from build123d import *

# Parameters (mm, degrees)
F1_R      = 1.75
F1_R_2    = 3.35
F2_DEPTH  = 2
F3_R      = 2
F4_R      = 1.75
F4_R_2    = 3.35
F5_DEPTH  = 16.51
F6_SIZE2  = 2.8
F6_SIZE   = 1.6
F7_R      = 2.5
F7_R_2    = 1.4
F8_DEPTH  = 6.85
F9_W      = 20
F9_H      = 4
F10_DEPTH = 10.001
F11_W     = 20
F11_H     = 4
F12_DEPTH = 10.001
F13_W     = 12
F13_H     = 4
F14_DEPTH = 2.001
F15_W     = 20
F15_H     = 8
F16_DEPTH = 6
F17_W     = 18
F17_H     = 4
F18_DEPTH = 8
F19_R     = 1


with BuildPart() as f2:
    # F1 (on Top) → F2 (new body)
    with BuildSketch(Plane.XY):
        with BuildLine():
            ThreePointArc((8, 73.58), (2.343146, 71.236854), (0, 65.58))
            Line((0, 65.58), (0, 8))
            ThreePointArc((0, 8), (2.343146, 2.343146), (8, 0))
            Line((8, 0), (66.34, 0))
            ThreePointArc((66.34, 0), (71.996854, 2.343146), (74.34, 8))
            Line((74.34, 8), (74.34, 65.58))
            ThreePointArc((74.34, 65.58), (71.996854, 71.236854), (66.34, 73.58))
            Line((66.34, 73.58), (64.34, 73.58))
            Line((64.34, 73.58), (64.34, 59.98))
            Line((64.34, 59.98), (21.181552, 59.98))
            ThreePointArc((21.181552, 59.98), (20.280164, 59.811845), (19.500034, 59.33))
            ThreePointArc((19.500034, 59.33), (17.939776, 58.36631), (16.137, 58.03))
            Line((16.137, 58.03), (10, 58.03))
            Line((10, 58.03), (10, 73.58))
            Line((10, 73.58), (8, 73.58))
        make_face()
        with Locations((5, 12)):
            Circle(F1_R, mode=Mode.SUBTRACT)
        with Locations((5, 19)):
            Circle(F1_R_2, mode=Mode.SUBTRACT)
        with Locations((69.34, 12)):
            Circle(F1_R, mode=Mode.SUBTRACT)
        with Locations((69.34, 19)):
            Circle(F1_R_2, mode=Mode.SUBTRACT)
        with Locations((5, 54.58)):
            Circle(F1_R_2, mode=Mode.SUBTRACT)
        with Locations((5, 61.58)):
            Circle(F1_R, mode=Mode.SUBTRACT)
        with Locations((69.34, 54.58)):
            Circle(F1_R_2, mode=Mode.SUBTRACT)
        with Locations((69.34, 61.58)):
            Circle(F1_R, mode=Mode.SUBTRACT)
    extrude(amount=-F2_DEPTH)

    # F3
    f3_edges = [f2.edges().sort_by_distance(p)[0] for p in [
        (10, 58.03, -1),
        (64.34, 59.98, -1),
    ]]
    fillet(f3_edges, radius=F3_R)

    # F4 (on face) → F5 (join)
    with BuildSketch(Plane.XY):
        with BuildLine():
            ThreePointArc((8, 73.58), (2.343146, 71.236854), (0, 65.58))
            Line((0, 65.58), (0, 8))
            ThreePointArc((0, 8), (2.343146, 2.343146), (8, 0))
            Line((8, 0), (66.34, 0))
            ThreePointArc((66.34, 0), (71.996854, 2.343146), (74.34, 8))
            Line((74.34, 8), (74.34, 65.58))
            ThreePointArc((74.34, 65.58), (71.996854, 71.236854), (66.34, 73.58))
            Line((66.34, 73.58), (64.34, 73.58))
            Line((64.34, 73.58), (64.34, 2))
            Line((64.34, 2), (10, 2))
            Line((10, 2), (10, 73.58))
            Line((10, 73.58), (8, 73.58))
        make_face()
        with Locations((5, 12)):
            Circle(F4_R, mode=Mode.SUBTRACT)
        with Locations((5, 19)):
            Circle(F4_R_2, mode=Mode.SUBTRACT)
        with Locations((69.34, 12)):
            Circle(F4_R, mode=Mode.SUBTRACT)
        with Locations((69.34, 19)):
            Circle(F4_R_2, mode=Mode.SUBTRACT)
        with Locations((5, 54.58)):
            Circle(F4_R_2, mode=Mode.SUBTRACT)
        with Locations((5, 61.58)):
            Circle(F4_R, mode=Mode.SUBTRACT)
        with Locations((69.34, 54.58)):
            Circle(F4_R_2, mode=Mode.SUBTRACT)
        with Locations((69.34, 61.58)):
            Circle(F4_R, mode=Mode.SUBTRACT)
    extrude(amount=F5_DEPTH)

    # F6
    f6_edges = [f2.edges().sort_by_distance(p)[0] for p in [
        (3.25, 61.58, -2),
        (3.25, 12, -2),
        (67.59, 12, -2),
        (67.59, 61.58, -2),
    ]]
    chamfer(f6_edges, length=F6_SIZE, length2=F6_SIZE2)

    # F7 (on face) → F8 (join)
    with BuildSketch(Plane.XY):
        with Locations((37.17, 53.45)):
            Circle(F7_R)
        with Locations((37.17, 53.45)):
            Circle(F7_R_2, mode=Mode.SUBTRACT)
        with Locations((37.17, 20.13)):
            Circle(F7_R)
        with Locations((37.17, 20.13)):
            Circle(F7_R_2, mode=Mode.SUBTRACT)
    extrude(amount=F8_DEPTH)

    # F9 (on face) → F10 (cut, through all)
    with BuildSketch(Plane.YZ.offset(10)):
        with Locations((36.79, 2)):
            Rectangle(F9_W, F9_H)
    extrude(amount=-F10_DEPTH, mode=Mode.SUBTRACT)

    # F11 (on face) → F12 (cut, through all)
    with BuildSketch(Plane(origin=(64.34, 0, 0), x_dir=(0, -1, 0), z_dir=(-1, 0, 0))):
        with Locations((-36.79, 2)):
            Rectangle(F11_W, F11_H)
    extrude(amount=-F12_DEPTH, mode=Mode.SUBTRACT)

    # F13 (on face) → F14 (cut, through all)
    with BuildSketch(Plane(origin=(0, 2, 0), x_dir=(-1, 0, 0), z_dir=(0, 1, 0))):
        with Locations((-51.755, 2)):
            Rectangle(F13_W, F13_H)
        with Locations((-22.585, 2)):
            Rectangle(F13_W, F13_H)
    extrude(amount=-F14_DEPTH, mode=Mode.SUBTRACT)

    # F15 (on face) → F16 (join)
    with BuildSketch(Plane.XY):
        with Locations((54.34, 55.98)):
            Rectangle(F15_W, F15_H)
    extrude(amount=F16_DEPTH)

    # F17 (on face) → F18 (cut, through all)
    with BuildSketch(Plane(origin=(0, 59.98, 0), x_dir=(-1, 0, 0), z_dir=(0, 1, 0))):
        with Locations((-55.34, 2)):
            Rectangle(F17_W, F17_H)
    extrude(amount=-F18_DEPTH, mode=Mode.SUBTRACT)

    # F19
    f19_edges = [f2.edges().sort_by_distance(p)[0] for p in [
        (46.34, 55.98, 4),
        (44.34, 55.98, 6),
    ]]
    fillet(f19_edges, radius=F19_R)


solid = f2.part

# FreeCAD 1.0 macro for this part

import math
import FreeCAD as App
import Part
import Sketcher
Q = App.Units.Quantity


def edges_at(feature, points):
    """Names of the edges that pass closest to the given points."""
    edges = feature.Shape.Edges
    near = lambda p: min(range(len(edges)), key=lambda i: edges[i].distToShape(Part.Vertex(*p))[0])
    return sorted({f"Edge{near(p) + 1}" for p in points})

doc = App.newDocument("Part")
body = doc.addObject("PartDesign::Body", "Body")

sketch1 = body.newObject("Sketcher::SketchObject", "Sketch")
sketch1.AttachmentSupport = (doc.getObject("XY_Plane"), [""])
sketch1.MapMode = "FlatFace"
sketch1.addGeometry(Part.ArcOfCircle(Part.Circle(App.Vector(8.000001, 65.579999, 0), App.Vector(0, 0, 1), 8.000001), math.radians(90.000006), math.radians(179.999994)), False)
sketch1.addGeometry(Part.LineSegment(App.Vector(0, 65.58, 0), App.Vector(0, 8, 0)), False)
sketch1.addGeometry(Part.ArcOfCircle(Part.Circle(App.Vector(8.000001, 8.000001, 0), App.Vector(0, 0, 1), 8.000001), math.radians(-179.999994), math.radians(-90.000006)), False)
sketch1.addGeometry(Part.LineSegment(App.Vector(8, 0, 0), App.Vector(66.34, 0, 0)), False)
sketch1.addGeometry(Part.ArcOfCircle(Part.Circle(App.Vector(66.339999, 8.000001, 0), App.Vector(0, 0, 1), 8.000001), math.radians(-89.999994), math.radians(-0.000006)), False)
sketch1.addGeometry(Part.LineSegment(App.Vector(74.34, 8, 0), App.Vector(74.34, 65.58, 0)), False)
sketch1.addGeometry(Part.ArcOfCircle(Part.Circle(App.Vector(66.339999, 65.579999, 0), App.Vector(0, 0, 1), 8.000001), math.radians(0.000006), math.radians(89.999994)), False)
sketch1.addGeometry(Part.LineSegment(App.Vector(66.34, 73.58, 0), App.Vector(64.34, 73.58, 0)), False)
sketch1.addGeometry(Part.LineSegment(App.Vector(64.34, 73.58, 0), App.Vector(64.34, 59.98, 0)), False)
sketch1.addGeometry(Part.LineSegment(App.Vector(64.34, 59.98, 0), App.Vector(21.181552, 59.98, 0)), False)
sketch1.addGeometry(Part.ArcOfCircle(Part.Circle(App.Vector(21.181551, 57.48, 0), App.Vector(0, 0, 1), 2.5), math.radians(89.999983), math.radians(132.268583)), False)
sketch1.addGeometry(Part.ArcOfCircle(Part.Circle(App.Vector(16.137003, 63.02999, 0), App.Vector(0, 0, 1), 4.99999), math.radians(-90.000039), math.radians(-47.731373)), False)
sketch1.addGeometry(Part.LineSegment(App.Vector(16.137, 58.03, 0), App.Vector(10, 58.03, 0)), False)
sketch1.addGeometry(Part.LineSegment(App.Vector(10, 58.03, 0), App.Vector(10, 73.58, 0)), False)
sketch1.addGeometry(Part.LineSegment(App.Vector(10, 73.58, 0), App.Vector(8, 73.58, 0)), False)
sketch1.addGeometry(Part.Circle(App.Vector(5, 12, 0), App.Vector(0, 0, 1), 1.75), False)
sketch1.addGeometry(Part.Circle(App.Vector(5, 19, 0), App.Vector(0, 0, 1), 3.35), False)
sketch1.addGeometry(Part.Circle(App.Vector(69.34, 12, 0), App.Vector(0, 0, 1), 1.75), False)
sketch1.addGeometry(Part.Circle(App.Vector(69.34, 19, 0), App.Vector(0, 0, 1), 3.35), False)
sketch1.addGeometry(Part.Circle(App.Vector(5, 54.58, 0), App.Vector(0, 0, 1), 3.35), False)
sketch1.addGeometry(Part.Circle(App.Vector(5, 61.58, 0), App.Vector(0, 0, 1), 1.75), False)
sketch1.addGeometry(Part.Circle(App.Vector(69.34, 54.58, 0), App.Vector(0, 0, 1), 3.35), False)
sketch1.addGeometry(Part.Circle(App.Vector(69.34, 61.58, 0), App.Vector(0, 0, 1), 1.75), False)
sketch1.addConstraint(Sketcher.Constraint("Tangent", 0, 2, 1, 1))
sketch1.addConstraint(Sketcher.Constraint("Tangent", 1, 2, 2, 1))
sketch1.addConstraint(Sketcher.Constraint("Tangent", 2, 2, 3, 1))
sketch1.addConstraint(Sketcher.Constraint("Tangent", 3, 2, 4, 1))
sketch1.addConstraint(Sketcher.Constraint("Tangent", 4, 2, 5, 1))
sketch1.addConstraint(Sketcher.Constraint("Tangent", 5, 2, 6, 1))
sketch1.addConstraint(Sketcher.Constraint("Tangent", 6, 2, 7, 1))
sketch1.addConstraint(Sketcher.Constraint("Coincident", 7, 2, 8, 1))
sketch1.addConstraint(Sketcher.Constraint("Coincident", 8, 2, 9, 1))
sketch1.addConstraint(Sketcher.Constraint("Tangent", 9, 2, 10, 1))
sketch1.addConstraint(Sketcher.Constraint("Tangent", 10, 2, 11, 2))
sketch1.addConstraint(Sketcher.Constraint("Tangent", 11, 1, 12, 1))
sketch1.addConstraint(Sketcher.Constraint("Coincident", 12, 2, 13, 1))
sketch1.addConstraint(Sketcher.Constraint("Coincident", 13, 2, 14, 1))
sketch1.addConstraint(Sketcher.Constraint("Tangent", 14, 2, 0, 1))
sketch1.addConstraint(Sketcher.Constraint("Vertical", 1))
sketch1.addConstraint(Sketcher.Constraint("Horizontal", 3))
sketch1.addConstraint(Sketcher.Constraint("Vertical", 5))
sketch1.addConstraint(Sketcher.Constraint("Horizontal", 7))
sketch1.addConstraint(Sketcher.Constraint("Vertical", 8))
sketch1.addConstraint(Sketcher.Constraint("Horizontal", 9))
sketch1.addConstraint(Sketcher.Constraint("Horizontal", 12))
sketch1.addConstraint(Sketcher.Constraint("Vertical", 13))
sketch1.addConstraint(Sketcher.Constraint("Horizontal", 14))
sketch1.addConstraint(Sketcher.Constraint("Equal", 0, 2))
sketch1.addConstraint(Sketcher.Constraint("Equal", 2, 4))
sketch1.addConstraint(Sketcher.Constraint("Equal", 4, 6))
sketch1.addConstraint(Sketcher.Constraint("Equal", 15, 17))
sketch1.addConstraint(Sketcher.Constraint("Equal", 16, 18))
sketch1.addConstraint(Sketcher.Constraint("Equal", 18, 19))
sketch1.addConstraint(Sketcher.Constraint("Equal", 17, 20))
sketch1.addConstraint(Sketcher.Constraint("Equal", 19, 21))
sketch1.addConstraint(Sketcher.Constraint("Equal", 20, 22))
sketch1.addConstraint(Sketcher.Constraint("PointOnObject", 0, 2, -2))
sketch1.addConstraint(Sketcher.Constraint("PointOnObject", 2, 2, -1))
sketch1.addConstraint(Sketcher.Constraint("Horizontal", 0, 3, 6, 3))
sketch1.addConstraint(Sketcher.Constraint("Horizontal", 15, 3, 17, 3))
sketch1.addConstraint(Sketcher.Constraint("Horizontal", 16, 3, 18, 3))
sketch1.addConstraint(Sketcher.Constraint("Horizontal", 19, 3, 21, 3))
sketch1.addConstraint(Sketcher.Constraint("Horizontal", 20, 3, 22, 3))
sketch1.addConstraint(Sketcher.Constraint("Vertical", 15, 3, 16, 3))
sketch1.addConstraint(Sketcher.Constraint("Vertical", 17, 3, 18, 3))
sketch1.addConstraint(Sketcher.Constraint("Vertical", 16, 3, 19, 3))
sketch1.addConstraint(Sketcher.Constraint("Vertical", 19, 3, 20, 3))
sketch1.addConstraint(Sketcher.Constraint("Vertical", 18, 3, 21, 3))
sketch1.addConstraint(Sketcher.Constraint("Vertical", 21, 3, 22, 3))
sketch1.addConstraint(Sketcher.Constraint("Equal", 7, 14))
sketch1.addConstraint(Sketcher.Constraint("Radius", 0, Q("8.000001 mm")))
sketch1.addConstraint(Sketcher.Constraint("Diameter", 15, Q("3.5 mm")))
sketch1.addConstraint(Sketcher.Constraint("Diameter", 16, Q("6.7 mm")))
sketch1.addConstraint(Sketcher.Constraint("Radius", 10, Q("2.5 mm")))
sketch1.addConstraint(Sketcher.Constraint("DistanceX", 7, 2, 7, 1, Q("2 mm")))
sketch1.addConstraint(Sketcher.Constraint("DistanceY", 8, 2, 8, 1, Q("13.6 mm")))
sketch1.addConstraint(Sketcher.Constraint("DistanceX", -1, 1, 15, 3, Q("5 mm")))
sketch1.addConstraint(Sketcher.Constraint("DistanceY", -1, 1, 15, 3, Q("12 mm")))
sketch1.addConstraint(Sketcher.Constraint("DistanceY", -1, 1, 16, 3, Q("19 mm")))
sketch1.addConstraint(Sketcher.Constraint("DistanceX", 4, 3, 17, 3, Q("3.000001 mm")))
sketch1.addConstraint(Sketcher.Constraint("DistanceY", 19, 3, 0, 3, Q("10.999999 mm")))
sketch1.addConstraint(Sketcher.Constraint("DistanceY", 20, 3, 0, 3, Q("3.999999 mm")))
sketch1.addConstraint(Sketcher.Constraint("DistanceX", 3, 1, 3, 2, Q("58.34 mm")))
sketch1.addConstraint(Sketcher.Constraint("DistanceY", 1, 2, 1, 1, Q("57.58 mm")))
sketch1.addConstraint(Sketcher.Constraint("DistanceY", 13, 1, 13, 2, Q("15.55 mm")))
sketch1.addConstraint(Sketcher.Constraint("DistanceY", 11, 1, 10, 2, Q("1.3 mm")))
sketch1.addConstraint(Sketcher.Constraint("DistanceX", 12, 2, 12, 1, Q("6.137 mm")))
pad1 = body.newObject("PartDesign::Pad", "Pad")
pad1.Profile = sketch1
pad1.Length = 2
pad1.Reversed = True
doc.recompute()

fillet = body.newObject("PartDesign::Fillet", "Fillet")
fillet.Base = (pad1, edges_at(pad1, [(10, 58.03, -1), (64.34, 59.98, -1)]))
fillet.Radius = 2

sketch2 = body.newObject("Sketcher::SketchObject", "Sketch001")
sketch2.AttachmentSupport = (doc.getObject("XY_Plane"), [""])
sketch2.MapMode = "FlatFace"
sketch2.addGeometry(Part.ArcOfCircle(Part.Circle(App.Vector(8.000001, 65.579999, 0), App.Vector(0, 0, 1), 8.000001), math.radians(90.000006), math.radians(179.999994)), False)
sketch2.addGeometry(Part.LineSegment(App.Vector(0, 65.58, 0), App.Vector(0, 8, 0)), False)
sketch2.addGeometry(Part.ArcOfCircle(Part.Circle(App.Vector(8.000001, 8.000001, 0), App.Vector(0, 0, 1), 8.000001), math.radians(-179.999994), math.radians(-90.000006)), False)
sketch2.addGeometry(Part.LineSegment(App.Vector(8, 0, 0), App.Vector(66.34, 0, 0)), False)
sketch2.addGeometry(Part.ArcOfCircle(Part.Circle(App.Vector(66.339999, 8.000001, 0), App.Vector(0, 0, 1), 8.000001), math.radians(-89.999994), math.radians(-0.000006)), False)
sketch2.addGeometry(Part.LineSegment(App.Vector(74.34, 8, 0), App.Vector(74.34, 65.58, 0)), False)
sketch2.addGeometry(Part.ArcOfCircle(Part.Circle(App.Vector(66.339999, 65.579999, 0), App.Vector(0, 0, 1), 8.000001), math.radians(0.000006), math.radians(89.999994)), False)
sketch2.addGeometry(Part.LineSegment(App.Vector(66.34, 73.58, 0), App.Vector(64.34, 73.58, 0)), False)
sketch2.addGeometry(Part.LineSegment(App.Vector(64.34, 73.58, 0), App.Vector(64.34, 2, 0)), False)
sketch2.addGeometry(Part.LineSegment(App.Vector(64.34, 2, 0), App.Vector(10, 2, 0)), False)
sketch2.addGeometry(Part.LineSegment(App.Vector(10, 2, 0), App.Vector(10, 73.58, 0)), False)
sketch2.addGeometry(Part.LineSegment(App.Vector(10, 73.58, 0), App.Vector(8, 73.58, 0)), False)
sketch2.addGeometry(Part.Circle(App.Vector(5, 12, 0), App.Vector(0, 0, 1), 1.75), False)
sketch2.addGeometry(Part.Circle(App.Vector(5, 19, 0), App.Vector(0, 0, 1), 3.35), False)
sketch2.addGeometry(Part.Circle(App.Vector(69.34, 12, 0), App.Vector(0, 0, 1), 1.75), False)
sketch2.addGeometry(Part.Circle(App.Vector(69.34, 19, 0), App.Vector(0, 0, 1), 3.35), False)
sketch2.addGeometry(Part.Circle(App.Vector(5, 54.58, 0), App.Vector(0, 0, 1), 3.35), False)
sketch2.addGeometry(Part.Circle(App.Vector(5, 61.58, 0), App.Vector(0, 0, 1), 1.75), False)
sketch2.addGeometry(Part.Circle(App.Vector(69.34, 54.58, 0), App.Vector(0, 0, 1), 3.35), False)
sketch2.addGeometry(Part.Circle(App.Vector(69.34, 61.58, 0), App.Vector(0, 0, 1), 1.75), False)
sketch2.addConstraint(Sketcher.Constraint("Tangent", 0, 2, 1, 1))
sketch2.addConstraint(Sketcher.Constraint("Tangent", 1, 2, 2, 1))
sketch2.addConstraint(Sketcher.Constraint("Tangent", 2, 2, 3, 1))
sketch2.addConstraint(Sketcher.Constraint("Tangent", 3, 2, 4, 1))
sketch2.addConstraint(Sketcher.Constraint("Tangent", 4, 2, 5, 1))
sketch2.addConstraint(Sketcher.Constraint("Tangent", 5, 2, 6, 1))
sketch2.addConstraint(Sketcher.Constraint("Tangent", 6, 2, 7, 1))
sketch2.addConstraint(Sketcher.Constraint("Coincident", 7, 2, 8, 1))
sketch2.addConstraint(Sketcher.Constraint("Coincident", 8, 2, 9, 1))
sketch2.addConstraint(Sketcher.Constraint("Coincident", 9, 2, 10, 1))
sketch2.addConstraint(Sketcher.Constraint("Coincident", 10, 2, 11, 1))
sketch2.addConstraint(Sketcher.Constraint("Tangent", 11, 2, 0, 1))
sketch2.addConstraint(Sketcher.Constraint("Vertical", 1))
sketch2.addConstraint(Sketcher.Constraint("Horizontal", 3))
sketch2.addConstraint(Sketcher.Constraint("Vertical", 5))
sketch2.addConstraint(Sketcher.Constraint("Horizontal", 7))
sketch2.addConstraint(Sketcher.Constraint("Vertical", 8))
sketch2.addConstraint(Sketcher.Constraint("Horizontal", 9))
sketch2.addConstraint(Sketcher.Constraint("Vertical", 10))
sketch2.addConstraint(Sketcher.Constraint("Horizontal", 11))
sketch2.addConstraint(Sketcher.Constraint("Equal", 0, 2))
sketch2.addConstraint(Sketcher.Constraint("Equal", 2, 4))
sketch2.addConstraint(Sketcher.Constraint("Equal", 4, 6))
sketch2.addConstraint(Sketcher.Constraint("Equal", 12, 14))
sketch2.addConstraint(Sketcher.Constraint("Equal", 13, 15))
sketch2.addConstraint(Sketcher.Constraint("Equal", 15, 16))
sketch2.addConstraint(Sketcher.Constraint("Equal", 14, 17))
sketch2.addConstraint(Sketcher.Constraint("Equal", 16, 18))
sketch2.addConstraint(Sketcher.Constraint("Equal", 17, 19))
sketch2.addConstraint(Sketcher.Constraint("PointOnObject", 0, 2, -2))
sketch2.addConstraint(Sketcher.Constraint("PointOnObject", 2, 2, -1))
sketch2.addConstraint(Sketcher.Constraint("Horizontal", 0, 3, 6, 3))
sketch2.addConstraint(Sketcher.Constraint("Horizontal", 12, 3, 14, 3))
sketch2.addConstraint(Sketcher.Constraint("Horizontal", 13, 3, 15, 3))
sketch2.addConstraint(Sketcher.Constraint("Horizontal", 16, 3, 18, 3))
sketch2.addConstraint(Sketcher.Constraint("Horizontal", 17, 3, 19, 3))
sketch2.addConstraint(Sketcher.Constraint("Vertical", 12, 3, 13, 3))
sketch2.addConstraint(Sketcher.Constraint("Vertical", 14, 3, 15, 3))
sketch2.addConstraint(Sketcher.Constraint("Vertical", 13, 3, 16, 3))
sketch2.addConstraint(Sketcher.Constraint("Vertical", 16, 3, 17, 3))
sketch2.addConstraint(Sketcher.Constraint("Vertical", 15, 3, 18, 3))
sketch2.addConstraint(Sketcher.Constraint("Vertical", 18, 3, 19, 3))
sketch2.addConstraint(Sketcher.Constraint("Equal", 7, 11))
sketch2.addConstraint(Sketcher.Constraint("Radius", 0, Q("8.000001 mm")))
sketch2.addConstraint(Sketcher.Constraint("Diameter", 12, Q("3.5 mm")))
sketch2.addConstraint(Sketcher.Constraint("Diameter", 13, Q("6.7 mm")))
sketch2.addConstraint(Sketcher.Constraint("DistanceX", 7, 2, 7, 1, Q("2 mm")))
sketch2.addConstraint(Sketcher.Constraint("DistanceX", -1, 1, 12, 3, Q("5 mm")))
sketch2.addConstraint(Sketcher.Constraint("DistanceY", -1, 1, 12, 3, Q("12 mm")))
sketch2.addConstraint(Sketcher.Constraint("DistanceY", -1, 1, 13, 3, Q("19 mm")))
sketch2.addConstraint(Sketcher.Constraint("DistanceY", -1, 1, 8, 2, Q("2 mm")))
sketch2.addConstraint(Sketcher.Constraint("DistanceX", 4, 3, 14, 3, Q("3.000001 mm")))
sketch2.addConstraint(Sketcher.Constraint("DistanceY", 16, 3, 0, 3, Q("10.999999 mm")))
sketch2.addConstraint(Sketcher.Constraint("DistanceY", 17, 3, 0, 3, Q("3.999999 mm")))
sketch2.addConstraint(Sketcher.Constraint("DistanceX", 3, 1, 3, 2, Q("58.34 mm")))
sketch2.addConstraint(Sketcher.Constraint("DistanceY", 1, 2, 1, 1, Q("57.58 mm")))
pad2 = body.newObject("PartDesign::Pad", "Pad001")
pad2.Profile = sketch2
pad2.Length = 16.51
doc.recompute()

chamfer = body.newObject("PartDesign::Chamfer", "Chamfer")
chamfer.Base = (pad2, edges_at(pad2, [
    (3.25, 61.58, -2),
    (3.25, 12, -2),
    (67.59, 12, -2),
    (67.59, 61.58, -2),
]))
chamfer.ChamferType = "Two distances"
chamfer.Size = 1.6
chamfer.Size2 = 2.8

sketch3 = body.newObject("Sketcher::SketchObject", "Sketch002")
sketch3.AttachmentSupport = (doc.getObject("XY_Plane"), [""])
sketch3.MapMode = "FlatFace"
sketch3.addGeometry(Part.Circle(App.Vector(37.17, 53.45, 0), App.Vector(0, 0, 1), 2.5), False)
sketch3.addGeometry(Part.Circle(App.Vector(37.17, 53.45, 0), App.Vector(0, 0, 1), 1.4), False)
sketch3.addGeometry(Part.Circle(App.Vector(37.17, 20.13, 0), App.Vector(0, 0, 1), 2.5), False)
sketch3.addGeometry(Part.Circle(App.Vector(37.17, 20.13, 0), App.Vector(0, 0, 1), 1.4), False)
sketch3.addConstraint(Sketcher.Constraint("Coincident", 1, 3, 0, 3))
sketch3.addConstraint(Sketcher.Constraint("Coincident", 3, 3, 2, 3))
sketch3.addConstraint(Sketcher.Constraint("Equal", 0, 2))
sketch3.addConstraint(Sketcher.Constraint("Equal", 1, 3))
sketch3.addConstraint(Sketcher.Constraint("Vertical", 1, 3, 2, 3))
sketch3.addConstraint(Sketcher.Constraint("Diameter", 0, Q("5 mm")))
sketch3.addConstraint(Sketcher.Constraint("Diameter", 1, Q("2.8 mm")))
sketch3.addConstraint(Sketcher.Constraint("DistanceX", -1, 1, 0, 3, Q("37.17 mm")))
sketch3.addConstraint(Sketcher.Constraint("DistanceY", -1, 1, 0, 3, Q("53.45 mm")))
sketch3.addConstraint(Sketcher.Constraint("DistanceY", -1, 1, 2, 3, Q("20.13 mm")))
pad3 = body.newObject("PartDesign::Pad", "Pad002")
pad3.Profile = sketch3
pad3.Length = 6.85

sketch4 = body.newObject("Sketcher::SketchObject", "Sketch003")
sketch4.AttachmentSupport = (doc.getObject("YZ_Plane"), [""])
sketch4.MapMode = "FlatFace"
sketch4.AttachmentOffset = App.Placement(App.Vector(0, 0, 10), App.Rotation())
sketch4.addGeometry(Part.LineSegment(App.Vector(26.79, 4, 0), App.Vector(26.79, 0, 0)), False)
sketch4.addGeometry(Part.LineSegment(App.Vector(26.79, 0, 0), App.Vector(46.79, 0, 0)), False)
sketch4.addGeometry(Part.LineSegment(App.Vector(46.79, 0, 0), App.Vector(46.79, 4, 0)), False)
sketch4.addGeometry(Part.LineSegment(App.Vector(46.79, 4, 0), App.Vector(26.79, 4, 0)), False)
sketch4.addConstraint(Sketcher.Constraint("Coincident", 0, 2, 1, 1))
sketch4.addConstraint(Sketcher.Constraint("Coincident", 1, 2, 2, 1))
sketch4.addConstraint(Sketcher.Constraint("Coincident", 2, 2, 3, 1))
sketch4.addConstraint(Sketcher.Constraint("Coincident", 3, 2, 0, 1))
sketch4.addConstraint(Sketcher.Constraint("Vertical", 0))
sketch4.addConstraint(Sketcher.Constraint("Horizontal", 1))
sketch4.addConstraint(Sketcher.Constraint("Vertical", 2))
sketch4.addConstraint(Sketcher.Constraint("Horizontal", 3))
sketch4.addConstraint(Sketcher.Constraint("PointOnObject", 0, 2, -1))
sketch4.addConstraint(Sketcher.Constraint("DistanceX", 1, 1, 1, 2, Q("20 mm")))
sketch4.addConstraint(Sketcher.Constraint("DistanceY", 0, 2, 0, 1, Q("4 mm")))
sketch4.addConstraint(Sketcher.Constraint("DistanceX", -1, 1, 0, 2, Q("26.79 mm")))
pocket1 = body.newObject("PartDesign::Pocket", "Pocket")
pocket1.Profile = sketch4
pocket1.Type = "ThroughAll"

sketch5 = body.newObject("Sketcher::SketchObject", "Sketch004")
sketch5.AttachmentSupport = (doc.getObject("YZ_Plane"), [""])
sketch5.MapMode = "FlatFace"
sketch5.AttachmentOffset = App.Placement(App.Vector(0, 0, 64.34), App.Rotation())
sketch5.addGeometry(Part.LineSegment(App.Vector(46.79, 4, 0), App.Vector(46.79, 0, 0)), False)
sketch5.addGeometry(Part.LineSegment(App.Vector(46.79, 0, 0), App.Vector(26.79, 0, 0)), False)
sketch5.addGeometry(Part.LineSegment(App.Vector(26.79, 0, 0), App.Vector(26.79, 4, 0)), False)
sketch5.addGeometry(Part.LineSegment(App.Vector(26.79, 4, 0), App.Vector(46.79, 4, 0)), False)
sketch5.addConstraint(Sketcher.Constraint("Coincident", 0, 2, 1, 1))
sketch5.addConstraint(Sketcher.Constraint("Coincident", 1, 2, 2, 1))
sketch5.addConstraint(Sketcher.Constraint("Coincident", 2, 2, 3, 1))
sketch5.addConstraint(Sketcher.Constraint("Coincident", 3, 2, 0, 1))
sketch5.addConstraint(Sketcher.Constraint("Vertical", 0))
sketch5.addConstraint(Sketcher.Constraint("Horizontal", 1))
sketch5.addConstraint(Sketcher.Constraint("Vertical", 2))
sketch5.addConstraint(Sketcher.Constraint("Horizontal", 3))
sketch5.addConstraint(Sketcher.Constraint("PointOnObject", 0, 2, -1))
sketch5.addConstraint(Sketcher.Constraint("DistanceX", 1, 2, 1, 1, Q("20 mm")))
sketch5.addConstraint(Sketcher.Constraint("DistanceY", 0, 2, 0, 1, Q("4 mm")))
sketch5.addConstraint(Sketcher.Constraint("DistanceX", -1, 1, 0, 2, Q("46.79 mm")))
pocket2 = body.newObject("PartDesign::Pocket", "Pocket001")
pocket2.Profile = sketch5
pocket2.Type = "ThroughAll"
pocket2.Reversed = True

sketch6 = body.newObject("Sketcher::SketchObject", "Sketch005")
sketch6.AttachmentSupport = (doc.getObject("XZ_Plane"), [""])
sketch6.MapMode = "FlatFace"
sketch6.AttachmentOffset = App.Placement(App.Vector(0, 0, -2), App.Rotation())
sketch6.addGeometry(Part.LineSegment(App.Vector(57.755, 4, 0), App.Vector(57.755, 0, 0)), False)
sketch6.addGeometry(Part.LineSegment(App.Vector(57.755, 0, 0), App.Vector(45.755, 0, 0)), False)
sketch6.addGeometry(Part.LineSegment(App.Vector(45.755, 0, 0), App.Vector(45.755, 4, 0)), False)
sketch6.addGeometry(Part.LineSegment(App.Vector(45.755, 4, 0), App.Vector(57.755, 4, 0)), False)
sketch6.addGeometry(Part.LineSegment(App.Vector(28.585, 4, 0), App.Vector(28.585, 0, 0)), False)
sketch6.addGeometry(Part.LineSegment(App.Vector(28.585, 0, 0), App.Vector(16.585, 0, 0)), False)
sketch6.addGeometry(Part.LineSegment(App.Vector(16.585, 0, 0), App.Vector(16.585, 4, 0)), False)
sketch6.addGeometry(Part.LineSegment(App.Vector(16.585, 4, 0), App.Vector(28.585, 4, 0)), False)
sketch6.addConstraint(Sketcher.Constraint("Coincident", 0, 2, 1, 1))
sketch6.addConstraint(Sketcher.Constraint("Coincident", 1, 2, 2, 1))
sketch6.addConstraint(Sketcher.Constraint("Coincident", 2, 2, 3, 1))
sketch6.addConstraint(Sketcher.Constraint("Coincident", 3, 2, 0, 1))
sketch6.addConstraint(Sketcher.Constraint("Coincident", 4, 2, 5, 1))
sketch6.addConstraint(Sketcher.Constraint("Coincident", 5, 2, 6, 1))
sketch6.addConstraint(Sketcher.Constraint("Coincident", 6, 2, 7, 1))
sketch6.addConstraint(Sketcher.Constraint("Coincident", 7, 2, 4, 1))
sketch6.addConstraint(Sketcher.Constraint("Vertical", 0))
sketch6.addConstraint(Sketcher.Constraint("Horizontal", 1))
sketch6.addConstraint(Sketcher.Constraint("Vertical", 2))
sketch6.addConstraint(Sketcher.Constraint("Horizontal", 3))
sketch6.addConstraint(Sketcher.Constraint("Vertical", 4))
sketch6.addConstraint(Sketcher.Constraint("Horizontal", 5))
sketch6.addConstraint(Sketcher.Constraint("Vertical", 6))
sketch6.addConstraint(Sketcher.Constraint("Horizontal", 7))
sketch6.addConstraint(Sketcher.Constraint("PointOnObject", 0, 2, -1))
sketch6.addConstraint(Sketcher.Constraint("PointOnObject", 4, 2, -1))
sketch6.addConstraint(Sketcher.Constraint("Horizontal", 3, 2, 6, 2))
sketch6.addConstraint(Sketcher.Constraint("Equal", 3, 5))
sketch6.addConstraint(Sketcher.Constraint("DistanceX", 1, 2, 1, 1, Q("12 mm")))
sketch6.addConstraint(Sketcher.Constraint("DistanceY", 0, 2, 0, 1, Q("4 mm")))
sketch6.addConstraint(Sketcher.Constraint("DistanceX", 4, 2, 1, 2, Q("17.17 mm")))
sketch6.addConstraint(Sketcher.Constraint("DistanceX", -1, 1, 0, 2, Q("57.755 mm")))
pocket3 = body.newObject("PartDesign::Pocket", "Pocket002")
pocket3.Profile = sketch6
pocket3.Type = "ThroughAll"
pocket3.Reversed = True

sketch7 = body.newObject("Sketcher::SketchObject", "Sketch006")
sketch7.AttachmentSupport = (doc.getObject("XY_Plane"), [""])
sketch7.MapMode = "FlatFace"
sketch7.addGeometry(Part.LineSegment(App.Vector(44.34, 59.98, 0), App.Vector(44.34, 51.98, 0)), False)
sketch7.addGeometry(Part.LineSegment(App.Vector(44.34, 51.98, 0), App.Vector(64.34, 51.98, 0)), False)
sketch7.addGeometry(Part.LineSegment(App.Vector(64.34, 51.98, 0), App.Vector(64.34, 59.98, 0)), False)
sketch7.addGeometry(Part.LineSegment(App.Vector(64.34, 59.98, 0), App.Vector(44.34, 59.98, 0)), False)
sketch7.addConstraint(Sketcher.Constraint("Coincident", 0, 2, 1, 1))
sketch7.addConstraint(Sketcher.Constraint("Coincident", 1, 2, 2, 1))
sketch7.addConstraint(Sketcher.Constraint("Coincident", 2, 2, 3, 1))
sketch7.addConstraint(Sketcher.Constraint("Coincident", 3, 2, 0, 1))
sketch7.addConstraint(Sketcher.Constraint("Vertical", 0))
sketch7.addConstraint(Sketcher.Constraint("Horizontal", 1))
sketch7.addConstraint(Sketcher.Constraint("Vertical", 2))
sketch7.addConstraint(Sketcher.Constraint("Horizontal", 3))
sketch7.addConstraint(Sketcher.Constraint("DistanceX", 1, 1, 1, 2, Q("20 mm")))
sketch7.addConstraint(Sketcher.Constraint("DistanceY", 0, 2, 0, 1, Q("8 mm")))
sketch7.addConstraint(Sketcher.Constraint("DistanceX", -1, 1, 0, 2, Q("44.34 mm")))
sketch7.addConstraint(Sketcher.Constraint("DistanceY", -1, 1, 0, 2, Q("51.98 mm")))
pad4 = body.newObject("PartDesign::Pad", "Pad003")
pad4.Profile = sketch7
pad4.Length = 6

sketch8 = body.newObject("Sketcher::SketchObject", "Sketch007")
sketch8.AttachmentSupport = (doc.getObject("XZ_Plane"), [""])
sketch8.MapMode = "FlatFace"
sketch8.AttachmentOffset = App.Placement(App.Vector(0, 0, -59.98), App.Rotation())
sketch8.addGeometry(Part.LineSegment(App.Vector(64.34, 4, 0), App.Vector(64.34, 0, 0)), False)
sketch8.addGeometry(Part.LineSegment(App.Vector(64.34, 0, 0), App.Vector(46.34, 0, 0)), False)
sketch8.addGeometry(Part.LineSegment(App.Vector(46.34, 0, 0), App.Vector(46.34, 4, 0)), False)
sketch8.addGeometry(Part.LineSegment(App.Vector(46.34, 4, 0), App.Vector(64.34, 4, 0)), False)
sketch8.addConstraint(Sketcher.Constraint("Coincident", 0, 2, 1, 1))
sketch8.addConstraint(Sketcher.Constraint("Coincident", 1, 2, 2, 1))
sketch8.addConstraint(Sketcher.Constraint("Coincident", 2, 2, 3, 1))
sketch8.addConstraint(Sketcher.Constraint("Coincident", 3, 2, 0, 1))
sketch8.addConstraint(Sketcher.Constraint("Vertical", 0))
sketch8.addConstraint(Sketcher.Constraint("Horizontal", 1))
sketch8.addConstraint(Sketcher.Constraint("Vertical", 2))
sketch8.addConstraint(Sketcher.Constraint("Horizontal", 3))
sketch8.addConstraint(Sketcher.Constraint("PointOnObject", 0, 2, -1))
sketch8.addConstraint(Sketcher.Constraint("DistanceX", 1, 2, 1, 1, Q("18 mm")))
sketch8.addConstraint(Sketcher.Constraint("DistanceY", 0, 2, 0, 1, Q("4 mm")))
sketch8.addConstraint(Sketcher.Constraint("DistanceX", -1, 1, 0, 2, Q("64.34 mm")))
pocket4 = body.newObject("PartDesign::Pocket", "Pocket003")
pocket4.Profile = sketch8
pocket4.Length = 8
pocket4.Reversed = True
doc.recompute()

fillet2 = body.newObject("PartDesign::Fillet", "Fillet001")
fillet2.Base = (pocket4, edges_at(pocket4, [(46.34, 55.98, 4), (44.34, 55.98, 6)]))
fillet2.Radius = 1

doc.recompute()
